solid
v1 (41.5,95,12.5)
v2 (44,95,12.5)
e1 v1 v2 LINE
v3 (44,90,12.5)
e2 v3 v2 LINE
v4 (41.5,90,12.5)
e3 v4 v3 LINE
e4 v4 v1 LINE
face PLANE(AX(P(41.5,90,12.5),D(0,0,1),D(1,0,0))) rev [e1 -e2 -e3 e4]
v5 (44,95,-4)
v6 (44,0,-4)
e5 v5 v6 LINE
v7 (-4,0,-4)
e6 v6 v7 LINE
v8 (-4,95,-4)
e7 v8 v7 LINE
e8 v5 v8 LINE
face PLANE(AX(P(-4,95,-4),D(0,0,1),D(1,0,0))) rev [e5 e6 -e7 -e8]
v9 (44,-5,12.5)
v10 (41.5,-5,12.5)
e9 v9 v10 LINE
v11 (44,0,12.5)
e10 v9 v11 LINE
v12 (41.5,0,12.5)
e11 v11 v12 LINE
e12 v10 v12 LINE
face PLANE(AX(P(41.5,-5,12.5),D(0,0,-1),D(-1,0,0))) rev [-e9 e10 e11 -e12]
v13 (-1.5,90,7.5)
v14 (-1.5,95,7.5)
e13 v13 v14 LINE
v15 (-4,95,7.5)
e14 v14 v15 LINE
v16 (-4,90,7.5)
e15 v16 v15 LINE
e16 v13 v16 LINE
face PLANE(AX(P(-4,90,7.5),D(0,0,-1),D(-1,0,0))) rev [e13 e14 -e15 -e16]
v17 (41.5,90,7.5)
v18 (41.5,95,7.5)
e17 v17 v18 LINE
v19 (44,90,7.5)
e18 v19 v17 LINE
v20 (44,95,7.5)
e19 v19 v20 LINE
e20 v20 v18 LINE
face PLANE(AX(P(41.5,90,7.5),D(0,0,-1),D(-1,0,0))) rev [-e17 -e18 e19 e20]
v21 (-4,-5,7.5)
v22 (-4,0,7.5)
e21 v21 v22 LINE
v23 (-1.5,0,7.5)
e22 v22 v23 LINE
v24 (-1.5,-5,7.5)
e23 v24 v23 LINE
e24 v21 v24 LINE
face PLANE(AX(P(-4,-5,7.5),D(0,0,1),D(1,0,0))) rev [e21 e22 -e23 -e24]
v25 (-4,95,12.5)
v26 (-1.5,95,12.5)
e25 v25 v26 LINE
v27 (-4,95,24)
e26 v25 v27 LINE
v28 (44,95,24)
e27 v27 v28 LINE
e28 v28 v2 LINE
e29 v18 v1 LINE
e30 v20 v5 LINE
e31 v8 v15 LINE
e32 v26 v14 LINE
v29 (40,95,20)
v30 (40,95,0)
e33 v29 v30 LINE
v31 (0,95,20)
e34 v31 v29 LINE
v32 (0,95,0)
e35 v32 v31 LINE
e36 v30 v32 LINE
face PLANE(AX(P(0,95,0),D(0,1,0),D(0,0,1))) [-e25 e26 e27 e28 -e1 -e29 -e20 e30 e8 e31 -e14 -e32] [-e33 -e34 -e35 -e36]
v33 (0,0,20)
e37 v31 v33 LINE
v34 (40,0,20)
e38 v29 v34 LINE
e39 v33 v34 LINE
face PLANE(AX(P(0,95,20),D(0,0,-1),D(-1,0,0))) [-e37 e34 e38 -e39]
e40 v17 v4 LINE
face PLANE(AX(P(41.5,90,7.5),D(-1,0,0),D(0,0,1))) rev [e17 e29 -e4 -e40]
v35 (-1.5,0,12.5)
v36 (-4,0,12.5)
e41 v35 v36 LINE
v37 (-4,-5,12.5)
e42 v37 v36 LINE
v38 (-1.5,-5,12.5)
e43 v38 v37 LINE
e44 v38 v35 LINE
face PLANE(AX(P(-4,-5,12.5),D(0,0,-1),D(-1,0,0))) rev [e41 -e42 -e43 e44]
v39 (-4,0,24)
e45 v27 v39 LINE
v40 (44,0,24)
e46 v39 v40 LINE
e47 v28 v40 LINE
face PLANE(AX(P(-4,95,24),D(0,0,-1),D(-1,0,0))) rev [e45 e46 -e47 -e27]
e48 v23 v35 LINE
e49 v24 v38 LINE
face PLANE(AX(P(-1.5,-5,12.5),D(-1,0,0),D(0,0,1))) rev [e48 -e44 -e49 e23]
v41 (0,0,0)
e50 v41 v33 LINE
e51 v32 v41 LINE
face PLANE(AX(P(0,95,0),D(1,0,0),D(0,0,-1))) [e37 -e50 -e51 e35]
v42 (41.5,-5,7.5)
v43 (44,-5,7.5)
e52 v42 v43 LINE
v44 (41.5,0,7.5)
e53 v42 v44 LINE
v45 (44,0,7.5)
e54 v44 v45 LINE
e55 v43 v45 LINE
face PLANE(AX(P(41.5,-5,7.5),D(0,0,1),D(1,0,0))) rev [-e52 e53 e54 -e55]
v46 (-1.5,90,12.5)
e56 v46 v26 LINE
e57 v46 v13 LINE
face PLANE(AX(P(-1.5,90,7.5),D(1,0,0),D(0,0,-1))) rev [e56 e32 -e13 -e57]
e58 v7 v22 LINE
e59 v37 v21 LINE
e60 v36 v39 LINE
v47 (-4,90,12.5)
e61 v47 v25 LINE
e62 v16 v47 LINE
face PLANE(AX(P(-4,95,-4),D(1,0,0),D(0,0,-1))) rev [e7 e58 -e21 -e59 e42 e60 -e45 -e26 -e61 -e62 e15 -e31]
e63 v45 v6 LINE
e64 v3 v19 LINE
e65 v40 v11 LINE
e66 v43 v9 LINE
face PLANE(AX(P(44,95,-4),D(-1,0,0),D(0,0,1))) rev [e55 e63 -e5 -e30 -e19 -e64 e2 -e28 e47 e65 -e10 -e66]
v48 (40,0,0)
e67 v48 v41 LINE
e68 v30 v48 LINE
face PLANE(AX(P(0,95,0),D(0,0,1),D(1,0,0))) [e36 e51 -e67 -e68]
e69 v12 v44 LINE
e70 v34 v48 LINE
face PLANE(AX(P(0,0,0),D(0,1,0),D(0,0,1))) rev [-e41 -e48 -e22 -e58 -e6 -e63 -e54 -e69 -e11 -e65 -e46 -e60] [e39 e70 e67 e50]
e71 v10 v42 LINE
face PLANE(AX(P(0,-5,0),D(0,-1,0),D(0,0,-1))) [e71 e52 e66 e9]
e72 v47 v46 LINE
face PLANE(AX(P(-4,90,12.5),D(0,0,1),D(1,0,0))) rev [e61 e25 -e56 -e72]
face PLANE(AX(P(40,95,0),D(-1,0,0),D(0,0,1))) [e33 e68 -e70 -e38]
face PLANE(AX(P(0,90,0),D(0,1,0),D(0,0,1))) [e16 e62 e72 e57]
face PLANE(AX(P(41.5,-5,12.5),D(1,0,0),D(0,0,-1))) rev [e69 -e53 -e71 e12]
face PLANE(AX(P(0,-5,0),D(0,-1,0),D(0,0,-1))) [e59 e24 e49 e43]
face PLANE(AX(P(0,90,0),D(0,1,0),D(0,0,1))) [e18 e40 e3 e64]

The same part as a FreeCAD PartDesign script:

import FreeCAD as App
import Part
import Sketcher
Q = App.Units.Quantity


def add_polygon(sketch, points):
    """Adds a closed chain of lines whose ends are joined by coincident constraints."""
    first, n = sketch.GeometryCount, len(points)
    for a, b in zip(points, points[1:] + points[:1]):
        sketch.addGeometry(Part.LineSegment(App.Vector(*a, 0), App.Vector(*b, 0)), False)
    for i in range(n):
        sketch.addConstraint(Sketcher.Constraint("Coincident", first + i, 2, first + (i + 1) % n, 1))

doc = App.newDocument("Part")
body = doc.addObject("PartDesign::Body", "Body")

sketch1 = body.newObject("Sketcher::SketchObject", "Sketch")
sketch1.AttachmentSupport = (doc.getObject("XZ_Plane"), [""])
sketch1.MapMode = "FlatFace"
add_polygon(sketch1, [(-4, -4), (-4, 24), (44, 24), (44, -4)])
add_polygon(sketch1, [(40, 20), (0, 20), (0, 0), (40, 0)])
sketch1.addConstraint([
    Sketcher.Constraint("Vertical", 0),
    Sketcher.Constraint("Horizontal", 1),
    Sketcher.Constraint("Vertical", 2),
    Sketcher.Constraint("Horizontal", 3),
    Sketcher.Constraint("Horizontal", 4),
    Sketcher.Constraint("Vertical", 5),
    Sketcher.Constraint("Horizontal", 6),
    Sketcher.Constraint("Vertical", 7),
    Sketcher.Constraint("Coincident", 5, 2, -1, 1),
    Sketcher.Constraint("DistanceX", 1, 1, 1, 2, Q("48 mm")),
    Sketcher.Constraint("DistanceX", 4, 2, 4, 1, Q("40 mm")),
    Sketcher.Constraint("DistanceY", 0, 1, 0, 2, Q("28 mm")),
    Sketcher.Constraint("DistanceY", 5, 2, 5, 1, Q("20 mm")),
    Sketcher.Constraint("DistanceX", 0, 2, -1, 1, Q("4 mm")),
    Sketcher.Constraint("DistanceY", -1, 1, 0, 2, Q("24 mm")),
])
pad1 = body.newObject("PartDesign::Pad", "Pad")
pad1.Profile = sketch1
pad1.Length = 95
pad1.Reversed = True

sketch2 = body.newObject("Sketcher::SketchObject", "Sketch001")
sketch2.AttachmentSupport = (doc.getObject("XZ_Plane"), [""])
sketch2.MapMode = "FlatFace"
sketch2.AttachmentOffset = App.Placement(App.Vector(0, 0, -95), App.Rotation())
add_polygon(sketch2, [(-4, 7.5), (-4, 12.5), (-1.5, 12.5), (-1.5, 7.5)])
add_polygon(sketch2, [(41.5, 7.5), (41.5, 12.5), (44, 12.5), (44, 7.5)])
sketch2.addConstraint([
    Sketcher.Constraint("Vertical", 0),
    Sketcher.Constraint("Horizontal", 1),
    Sketcher.Constraint("Vertical", 2),
    Sketcher.Constraint("Horizontal", 3),
    Sketcher.Constraint("Vertical", 4),
    Sketcher.Constraint("Horizontal", 5),
    Sketcher.Constraint("Vertical", 6),
    Sketcher.Constraint("Horizontal", 7),
    Sketcher.Constraint("Horizontal", 1, 2, 4, 2),
    Sketcher.Constraint("Horizontal", 3, 2, 6, 2),
    Sketcher.Constraint("Equal", 3, 5),
    Sketcher.Constraint("DistanceY", 0, 1, 0, 2, Q("5 mm")),
    Sketcher.Constraint("DistanceX", 1, 1, 1, 2, Q("2.5 mm")),
    Sketcher.Constraint("DistanceX", 0, 2, -1, 1, Q("4 mm")),
    Sketcher.Constraint("DistanceX", -1, 1, 5, 2, Q("44 mm")),
    Sketcher.Constraint("DistanceY", -1, 1, 0, 2, Q("12.5 mm")),
])
pocket1 = body.newObject("PartDesign::Pocket", "Pocket")
pocket1.Profile = sketch2
pocket1.Length = 5
pocket1.Reversed = True

sketch3 = body.newObject("Sketcher::SketchObject", "Sketch002")
sketch3.AttachmentSupport = (doc.getObject("XZ_Plane"), [""])
sketch3.MapMode = "FlatFace"
add_polygon(sketch3, [(-4, 12.5), (-4, 7.5), (-1.5, 7.5), (-1.5, 12.5)])
add_polygon(sketch3, [(41.5, 12.5), (41.5, 7.5), (44, 7.5), (44, 12.5)])
sketch3.addConstraint([
    Sketcher.Constraint("Vertical", 0),
    Sketcher.Constraint("Horizontal", 1),
    Sketcher.Constraint("Vertical", 2),
    Sketcher.Constraint("Horizontal", 3),
    Sketcher.Constraint("Vertical", 4),
    Sketcher.Constraint("Horizontal", 5),
    Sketcher.Constraint("Vertical", 6),
    Sketcher.Constraint("Horizontal", 7),
    Sketcher.Constraint("Horizontal", 1, 2, 4, 2),
    Sketcher.Constraint("Horizontal", 3, 2, 6, 2),
    Sketcher.Constraint("Equal", 3, 5),
    Sketcher.Constraint("DistanceY", 0, 2, 0, 1, Q("5 mm")),
    Sketcher.Constraint("DistanceX", 1, 1, 1, 2, Q("2.5 mm")),
    Sketcher.Constraint("DistanceX", 0, 2, -1, 1, Q("4 mm")),
    Sketcher.Constraint("DistanceX", -1, 1, 5, 2, Q("44 mm")),
    Sketcher.Constraint("DistanceY", -1, 1, 0, 2, Q("7.5 mm")),
])
pad2 = body.newObject("PartDesign::Pad", "Pad001")
pad2.Profile = sketch3
pad2.Length = 5

doc.recompute()
